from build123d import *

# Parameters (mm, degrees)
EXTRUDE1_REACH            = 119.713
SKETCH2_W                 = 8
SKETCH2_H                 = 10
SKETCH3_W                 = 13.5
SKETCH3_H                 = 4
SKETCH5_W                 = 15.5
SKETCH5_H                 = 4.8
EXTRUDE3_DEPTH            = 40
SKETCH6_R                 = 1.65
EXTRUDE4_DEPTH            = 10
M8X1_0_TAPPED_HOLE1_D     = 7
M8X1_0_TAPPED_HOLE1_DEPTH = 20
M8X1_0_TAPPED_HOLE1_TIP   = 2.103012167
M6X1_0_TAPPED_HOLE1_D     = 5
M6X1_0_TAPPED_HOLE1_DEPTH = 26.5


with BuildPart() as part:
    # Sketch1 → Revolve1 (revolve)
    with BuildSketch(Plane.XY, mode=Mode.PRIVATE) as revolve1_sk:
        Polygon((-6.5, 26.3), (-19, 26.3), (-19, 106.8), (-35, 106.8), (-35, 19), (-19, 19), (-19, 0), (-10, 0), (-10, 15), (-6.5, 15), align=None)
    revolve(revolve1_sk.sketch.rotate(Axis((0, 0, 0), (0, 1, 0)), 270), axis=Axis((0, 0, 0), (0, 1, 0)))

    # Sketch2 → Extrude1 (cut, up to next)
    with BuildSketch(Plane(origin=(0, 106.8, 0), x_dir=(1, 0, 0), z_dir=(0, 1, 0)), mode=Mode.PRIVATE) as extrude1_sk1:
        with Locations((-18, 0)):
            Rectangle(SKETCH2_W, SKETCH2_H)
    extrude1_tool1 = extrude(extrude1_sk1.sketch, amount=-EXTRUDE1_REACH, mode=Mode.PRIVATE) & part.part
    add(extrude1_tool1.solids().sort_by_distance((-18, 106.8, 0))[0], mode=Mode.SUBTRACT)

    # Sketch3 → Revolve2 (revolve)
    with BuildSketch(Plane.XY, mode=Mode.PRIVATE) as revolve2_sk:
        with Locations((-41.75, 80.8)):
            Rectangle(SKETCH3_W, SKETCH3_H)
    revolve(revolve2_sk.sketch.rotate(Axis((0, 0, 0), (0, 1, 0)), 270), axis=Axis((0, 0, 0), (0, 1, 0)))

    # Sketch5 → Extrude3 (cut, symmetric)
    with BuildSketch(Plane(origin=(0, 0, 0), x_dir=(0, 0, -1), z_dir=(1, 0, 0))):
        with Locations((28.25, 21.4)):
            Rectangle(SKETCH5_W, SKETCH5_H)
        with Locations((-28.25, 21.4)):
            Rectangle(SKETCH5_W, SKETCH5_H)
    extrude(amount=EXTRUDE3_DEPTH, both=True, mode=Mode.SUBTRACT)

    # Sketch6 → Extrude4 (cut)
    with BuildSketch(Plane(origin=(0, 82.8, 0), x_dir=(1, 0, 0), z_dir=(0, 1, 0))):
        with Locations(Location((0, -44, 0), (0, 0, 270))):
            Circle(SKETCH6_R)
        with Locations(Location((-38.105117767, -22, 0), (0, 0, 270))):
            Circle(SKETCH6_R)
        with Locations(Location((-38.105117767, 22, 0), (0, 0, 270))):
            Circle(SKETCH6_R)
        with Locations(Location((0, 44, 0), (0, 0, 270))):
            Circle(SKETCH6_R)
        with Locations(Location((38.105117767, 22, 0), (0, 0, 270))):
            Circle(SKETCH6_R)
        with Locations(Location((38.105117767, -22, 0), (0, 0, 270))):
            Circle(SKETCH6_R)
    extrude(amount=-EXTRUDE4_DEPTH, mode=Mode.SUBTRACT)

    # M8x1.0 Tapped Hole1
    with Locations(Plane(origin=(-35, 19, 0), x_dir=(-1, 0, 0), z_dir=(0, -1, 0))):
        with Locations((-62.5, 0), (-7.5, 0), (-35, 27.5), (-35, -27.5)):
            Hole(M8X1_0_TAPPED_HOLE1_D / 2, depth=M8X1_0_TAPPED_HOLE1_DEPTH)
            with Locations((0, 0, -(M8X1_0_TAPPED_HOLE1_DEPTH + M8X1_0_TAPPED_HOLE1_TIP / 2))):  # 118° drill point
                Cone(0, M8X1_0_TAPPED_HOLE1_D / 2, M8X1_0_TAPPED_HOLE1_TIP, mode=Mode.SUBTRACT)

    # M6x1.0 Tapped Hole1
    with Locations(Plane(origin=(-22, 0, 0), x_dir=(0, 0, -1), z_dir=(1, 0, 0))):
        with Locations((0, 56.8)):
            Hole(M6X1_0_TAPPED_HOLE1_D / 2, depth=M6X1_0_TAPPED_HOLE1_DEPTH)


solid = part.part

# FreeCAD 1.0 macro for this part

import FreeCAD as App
import Part
import Sketcher

V = App.Vector


def add_polygon(sketch, points):
    """Adds a closed chain of lines whose ends are joined by coincident constraints."""
    first, n = sketch.GeometryCount, len(points)
    for a, b in zip(points, points[1:] + points[:1]):
        sketch.addGeometry(Part.LineSegment(App.Vector(*a, 0), App.Vector(*b, 0)), False)
    for i in range(n):
        sketch.addConstraint(Sketcher.Constraint("Coincident", first + i, 2, first + (i + 1) % n, 1))

doc = App.newDocument("Part")
body = doc.addObject("PartDesign::Body", "Body")

# Sketch on XY plane
sketch1 = body.newObject("Sketcher::SketchObject", "Sketch")
sketch1.AttachmentSupport = (doc.getObject("XY_Plane"), [""])
sketch1.MapMode = "FlatFace"
add_polygon(sketch1, [(-6.5, 26.3), (-19, 26.3), (-19, 106.8), (-35, 106.8), (-35, 19), (-19, 19), (-19, 0), (-10, 0), (-10, 15), (-6.5, 15)])  # lines 0-9
sketch1.addConstraint([
    Sketcher.Constraint("Horizontal", 0),
    Sketcher.Constraint("Vertical", 1),
    Sketcher.Constraint("Horizontal", 2),
    Sketcher.Constraint("Vertical", 3),
    Sketcher.Constraint("Horizontal", 4),
    Sketcher.Constraint("Vertical", 5),
    Sketcher.Constraint("Horizontal", 6),
    Sketcher.Constraint("Vertical", 7),
    Sketcher.Constraint("Horizontal", 8),
    Sketcher.Constraint("Vertical", 9),
    Sketcher.Constraint("PointOnObject", 5, 2, -1),
    Sketcher.Constraint("Vertical", 1, 2, 4, 2),
    Sketcher.Constraint("DistanceX", 2, 2, 2, 1, 16.0),
    Sketcher.Constraint("DistanceX", 6, 1, 6, 2, 9.0),
    Sketcher.Constraint("DistanceY", 5, 2, 5, 1, 19.0),
    Sketcher.Constraint("DistanceY", 7, 1, 7, 2, 15.0),
    Sketcher.Constraint("DistanceX", 0, 2, 0, 1, 12.5),
    Sketcher.Constraint("DistanceY", 1, 1, 1, 2, 80.5),
    Sketcher.Constraint("DistanceY", 3, 2, 3, 1, 87.8),
    Sketcher.Constraint("DistanceX", 0, 2, -1, 1, 19.0),
])
revolution = body.newObject("PartDesign::Revolution", "Revolution")
revolution.Profile = sketch1
revolution.ReferenceAxis = (sketch1, ["V_Axis"])
revolution.Angle = 360

# Sketch on XZ plane
sketch2 = body.newObject("Sketcher::SketchObject", "Sketch001")
sketch2.AttachmentSupport = (doc.getObject("XZ_Plane"), [""])
sketch2.MapMode = "FlatFace"
sketch2.AttachmentOffset = App.Placement(V(0, 0, -106.8), App.Rotation())
add_polygon(sketch2, [(-22, -5), (-22, 5), (-14, 5), (-14, -5)])  # lines 0-3
sketch2.addConstraint([
    Sketcher.Constraint("Vertical", 0),
    Sketcher.Constraint("Horizontal", 1),
    Sketcher.Constraint("Vertical", 2),
    Sketcher.Constraint("Horizontal", 3),
    Sketcher.Constraint("DistanceX", 1, 1, 1, 2, 8.0),
    Sketcher.Constraint("DistanceY", 0, 1, 0, 2, 10.0),
    Sketcher.Constraint("DistanceX", 0, 2, -1, 1, 22.0),
    Sketcher.Constraint("DistanceY", -1, 1, 0, 2, 5.0),
])
pocket1 = body.newObject("PartDesign::Pocket", "Pocket")
pocket1.Profile = sketch2
pocket1.Length = 106.8
pocket1.Reversed = True

# Sketch on XY plane
sketch3 = body.newObject("Sketcher::SketchObject", "Sketch002")
sketch3.AttachmentSupport = (doc.getObject("XY_Plane"), [""])
sketch3.MapMode = "FlatFace"
add_polygon(sketch3, [(-48.5, 82.8), (-48.5, 78.8), (-35, 78.8), (-35, 82.8)])  # lines 0-3
sketch3.addConstraint([
    Sketcher.Constraint("Vertical", 0),
    Sketcher.Constraint("Horizontal", 1),
    Sketcher.Constraint("Vertical", 2),
    Sketcher.Constraint("Horizontal", 3),
    Sketcher.Constraint("DistanceY", 0, 2, 0, 1, 4.0),
    Sketcher.Constraint("DistanceX", 1, 1, 1, 2, 13.5),
    Sketcher.Constraint("DistanceX", 1, 2, -1, 1, 35.0),
    Sketcher.Constraint("DistanceY", -1, 1, 0, 2, 78.8),
])
revolution2 = body.newObject("PartDesign::Revolution", "Revolution001")
revolution2.Profile = sketch3
revolution2.ReferenceAxis = (sketch3, ["V_Axis"])
revolution2.Angle = 360

# Sketch on YZ plane
sketch4 = body.newObject("Sketcher::SketchObject", "Sketch003")
sketch4.AttachmentSupport = (doc.getObject("YZ_Plane"), [""])
sketch4.MapMode = "FlatFace"
add_polygon(sketch4, [(23.8, -20.5), (19, -20.5), (19, -36), (23.8, -36)])  # lines 0-3
add_polygon(sketch4, [(23.8, 36), (19, 36), (19, 20.5), (23.8, 20.5)])  # lines 4-7
sketch4.addConstraint([
    Sketcher.Constraint("Horizontal", 0),
    Sketcher.Constraint("Vertical", 1),
    Sketcher.Constraint("Horizontal", 2),
    Sketcher.Constraint("Vertical", 3),
    Sketcher.Constraint("Horizontal", 4),
    Sketcher.Constraint("Vertical", 5),
    Sketcher.Constraint("Horizontal", 6),
    Sketcher.Constraint("Vertical", 7),
    Sketcher.Constraint("Symmetric", 1, 2, 4, 2, -1),
    Sketcher.Constraint("Symmetric", 3, 2, 6, 2, -1),
    Sketcher.Constraint("DistanceX", 0, 2, 0, 1, 4.8),
    Sketcher.Constraint("DistanceY", 1, 2, 1, 1, 15.5),
    Sketcher.Constraint("DistanceX", -1, 1, 0, 2, 19.0),
    Sketcher.Constraint("DistanceY", 1, 2, -1, 1, 36.0),
])
pocket2 = body.newObject("PartDesign::Pocket", "Pocket001")
pocket2.Profile = sketch4
pocket2.Length = 80
pocket2.Midplane = True

# Sketch on XZ plane
sketch5 = body.newObject("Sketcher::SketchObject", "Sketch004")
sketch5.AttachmentSupport = (doc.getObject("XZ_Plane"), [""])
sketch5.MapMode = "FlatFace"
sketch5.AttachmentOffset = App.Placement(V(0, 0, -82.8), App.Rotation())
sketch5.addGeometry([
    Part.Circle(V(0, 44, 0), V(0, 0, 1), 1.6),  # 0
    Part.Circle(V(-38.1, 22, 0), V(0, 0, 1), 1.6),  # 1
    Part.Circle(V(-38.1, -22, 0), V(0, 0, 1), 1.6),  # 2
    Part.Circle(V(0, -44, 0), V(0, 0, 1), 1.6),  # 3
    Part.Circle(V(38.1, -22, 0), V(0, 0, 1), 1.6),  # 4
    Part.Circle(V(38.1, 22, 0), V(0, 0, 1), 1.6),  # 5
], False)
sketch5.addConstraint([
    Sketcher.Constraint("Equal", 0, 1),
    Sketcher.Constraint("Equal", 1, 2),
    Sketcher.Constraint("Equal", 2, 3),
    Sketcher.Constraint("Equal", 3, 4),
    Sketcher.Constraint("Equal", 4, 5),
    Sketcher.Constraint("Symmetric", 0, 3, 3, 3, -1, 1),
    Sketcher.Constraint("Symmetric", 1, 3, 4, 3, -1, 1),
    Sketcher.Constraint("Symmetric", 2, 3, 5, 3, -1, 1),
    Sketcher.Constraint("Symmetric", 2, 3, 4, 3, -2),
    Sketcher.Constraint("PointOnObject", 0, 3, -2),
    Sketcher.Constraint("Diameter", 0, 3.3),
    Sketcher.Constraint("DistanceY", -1, 1, 0, 3, 44.0),
    Sketcher.Constraint("DistanceY", -1, 1, 1, 3, 22.0),
    Sketcher.Constraint("DistanceX", 1, 3, -1, 1, 38.105118),
])
pocket3 = body.newObject("PartDesign::Pocket", "Pocket002")
pocket3.Profile = sketch5
pocket3.Length = 10
pocket3.Reversed = True

# Sketch on XZ plane
sketch6 = body.newObject("Sketcher::SketchObject", "Sketch005")
sketch6.AttachmentSupport = (doc.getObject("XZ_Plane"), [""])
sketch6.MapMode = "FlatFace"
sketch6.AttachmentOffset = App.Placement(V(0, 0, -19), App.Rotation())
sketch6.addGeometry([
    Part.Circle(V(27.5, 0, 0), V(0, 0, 1), 3.5),
    Part.Circle(V(-27.5, 0, 0), V(0, 0, 1), 3.5),
    Part.Circle(V(0, -27.5, 0), V(0, 0, 1), 3.5),
    Part.Circle(V(0, 27.5, 0), V(0, 0, 1), 3.5),
], False)
sketch6.addConstraint([
    Sketcher.Constraint("Equal", 0, 1),
    Sketcher.Constraint("Equal", 1, 2),
    Sketcher.Constraint("Equal", 2, 3),
    Sketcher.Constraint("Symmetric", 0, 3, 1, 3, -1, 1),
    Sketcher.Constraint("Symmetric", 2, 3, 3, 3, -1, 1),
    Sketcher.Constraint("PointOnObject", 0, 3, -1),
    Sketcher.Constraint("PointOnObject", 2, 3, -2),
    Sketcher.Constraint("Diameter", 0, 7.0),
    Sketcher.Constraint("DistanceX", 1, 3, 0, 3, 55.0),
    Sketcher.Constraint("DistanceY", 2, 3, 3, 3, 55.0),
])
doc.recompute()
hole = body.newObject("PartDesign::Hole", "Hole")
hole.Profile = sketch6
hole.ThreadType = "None"
hole.Diameter = 7
hole.DepthType = "Dimension"
hole.Depth = 20
hole.DrillPoint = "Angled"
hole.DrillPointAngle = 118

# Sketch on YZ plane
sketch7 = body.newObject("Sketcher::SketchObject", "Sketch006")
sketch7.AttachmentSupport = (doc.getObject("YZ_Plane"), [""])
sketch7.MapMode = "FlatFace"
sketch7.AttachmentOffset = App.Placement(V(0, 0, -22), App.Rotation())
sketch7.addGeometry(Part.Circle(V(56.8, 0, 0), V(0, 0, 1), 2.5), False)
sketch7.addConstraint([
    Sketcher.Constraint("PointOnObject", 0, 3, -1),
    Sketcher.Constraint("Diameter", 0, 5.0),
    Sketcher.Constraint("DistanceX", -1, 1, 0, 3, 56.8),
])
doc.recompute()
hole2 = body.newObject("PartDesign::Hole", "Hole001")
hole2.Profile = sketch7
hole2.ThreadType = "None"
hole2.Diameter = 5
hole2.DepthType = "Dimension"
hole2.Depth = 26.5
hole2.DrillPoint = "Flat"

doc.recompute()
